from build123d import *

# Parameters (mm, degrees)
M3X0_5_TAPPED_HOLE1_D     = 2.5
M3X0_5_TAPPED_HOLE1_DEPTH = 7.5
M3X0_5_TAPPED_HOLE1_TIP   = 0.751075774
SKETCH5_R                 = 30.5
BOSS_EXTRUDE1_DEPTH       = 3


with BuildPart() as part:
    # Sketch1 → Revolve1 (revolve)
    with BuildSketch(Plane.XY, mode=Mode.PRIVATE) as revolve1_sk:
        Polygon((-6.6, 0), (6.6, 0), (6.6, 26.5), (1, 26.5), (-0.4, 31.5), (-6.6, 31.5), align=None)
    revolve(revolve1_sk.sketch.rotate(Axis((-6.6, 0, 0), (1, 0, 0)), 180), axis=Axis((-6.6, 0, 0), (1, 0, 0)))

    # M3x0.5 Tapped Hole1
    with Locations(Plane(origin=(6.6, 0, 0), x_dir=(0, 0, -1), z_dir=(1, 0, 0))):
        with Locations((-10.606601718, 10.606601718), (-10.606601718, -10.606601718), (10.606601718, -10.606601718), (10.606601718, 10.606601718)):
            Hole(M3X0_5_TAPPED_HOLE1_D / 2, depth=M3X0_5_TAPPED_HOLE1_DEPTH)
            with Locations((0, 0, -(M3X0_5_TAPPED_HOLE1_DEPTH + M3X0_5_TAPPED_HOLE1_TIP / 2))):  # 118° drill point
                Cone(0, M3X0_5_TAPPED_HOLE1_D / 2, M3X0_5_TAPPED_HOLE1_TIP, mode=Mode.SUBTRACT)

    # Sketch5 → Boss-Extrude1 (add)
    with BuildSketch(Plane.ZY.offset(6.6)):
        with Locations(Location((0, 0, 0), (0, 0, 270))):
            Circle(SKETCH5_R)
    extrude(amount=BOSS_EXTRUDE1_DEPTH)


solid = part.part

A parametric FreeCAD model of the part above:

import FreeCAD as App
import Part
import Sketcher
Q = App.Units.Quantity

doc = App.newDocument("Part")
body = doc.addObject("PartDesign::Body", "Body")

# Sketch on XY plane
sketch1 = body.newObject("Sketcher::SketchObject", "Sketch")
sketch1.AttachmentSupport = (doc.getObject("XY_Plane"), [""])
sketch1.MapMode = "FlatFace"
sketch1.addGeometry([
    Part.LineSegment(App.Vector(-7, 0, 0), App.Vector(7, 0, 0)),  # 0
    Part.LineSegment(App.Vector(7, 0, 0), App.Vector(7, 26, 0)),  # 1
    Part.LineSegment(App.Vector(7, 26, 0), App.Vector(1, 26, 0)),  # 2
    Part.LineSegment(App.Vector(1, 26, 0), App.Vector(0, 32, 0)),  # 3
    Part.LineSegment(App.Vector(0, 32, 0), App.Vector(-7, 32, 0)),  # 4
    Part.LineSegment(App.Vector(-7, 32, 0), App.Vector(-7, 0, 0)),  # 5
], False)
sketch1.addConstraint([
    Sketcher.Constraint("Coincident", 0, 2, 1, 1),
    Sketcher.Constraint("Coincident", 1, 2, 2, 1),
    Sketcher.Constraint("Coincident", 2, 2, 3, 1),
    Sketcher.Constraint("Coincident", 3, 2, 4, 1),
    Sketcher.Constraint("Coincident", 4, 2, 5, 1),
    Sketcher.Constraint("Coincident", 5, 2, 0, 1),
    Sketcher.Constraint("Horizontal", 0),
    Sketcher.Constraint("Vertical", 1),
    Sketcher.Constraint("Horizontal", 2),
    Sketcher.Constraint("Horizontal", 4),
    Sketcher.Constraint("Vertical", 5),
    Sketcher.Constraint("Symmetric", 0, 2, 5, 2, -1, 1),
    Sketcher.Constraint("DistanceX", 0, 1, 0, 2, Q("13.2 mm")),
    Sketcher.Constraint("DistanceX", 2, 2, 2, 1, Q("5.6 mm")),
    Sketcher.Constraint("DistanceX", 4, 2, 4, 1, Q("6.2 mm")),
    Sketcher.Constraint("DistanceY", 1, 1, 1, 2, Q("26.5 mm")),
    Sketcher.Constraint("DistanceY", 5, 2, 5, 1, Q("31.5 mm")),
])
revolution = body.newObject("PartDesign::Revolution", "Revolution")
revolution.Profile = sketch1
revolution.ReferenceAxis = (sketch1, ["H_Axis"])
revolution.Angle = 360

# Sketch on YZ plane
sketch2 = body.newObject("Sketcher::SketchObject", "Sketch001")
sketch2.AttachmentSupport = (doc.getObject("YZ_Plane"), [""])
sketch2.MapMode = "FlatFace"
sketch2.AttachmentOffset = App.Placement(App.Vector(0, 0, 6.6), App.Rotation())
sketch2.addGeometry([
    Part.Circle(App.Vector(10.6, 10.6, 0), App.Vector(0, 0, 1), 1.2),
    Part.Circle(App.Vector(-10.6, 10.6, 0), App.Vector(0, 0, 1), 1.2),
    Part.Circle(App.Vector(-10.6, -10.6, 0), App.Vector(0, 0, 1), 1.2),
    Part.Circle(App.Vector(10.6, -10.6, 0), App.Vector(0, 0, 1), 1.2),
], False)
sketch2.addConstraint([
    Sketcher.Constraint("Equal", 0, 1),
    Sketcher.Constraint("Equal", 1, 2),
    Sketcher.Constraint("Equal", 2, 3),
    Sketcher.Constraint("Symmetric", 0, 3, 2, 3, -1, 1),
    Sketcher.Constraint("Symmetric", 1, 3, 3, 3, -1, 1),
    Sketcher.Constraint("Symmetric", 0, 3, 1, 3, -2),
    Sketcher.Constraint("Diameter", 0, Q("2.5 mm")),
    Sketcher.Constraint("DistanceX", -1, 1, 0, 3, Q("10.606602 mm")),
    Sketcher.Constraint("DistanceY", -1, 1, 0, 3, Q("10.606602 mm")),
])
doc.recompute()
hole = body.newObject("PartDesign::Hole", "Hole")
hole.Profile = sketch2
hole.ThreadType = "None"
hole.Diameter = 2.5
hole.DepthType = "Dimension"
hole.Depth = 7.5
hole.DrillPoint = "Angled"
hole.DrillPointAngle = 118

# Sketch on YZ plane
sketch3 = body.newObject("Sketcher::SketchObject", "Sketch002")
sketch3.AttachmentSupport = (doc.getObject("YZ_Plane"), [""])
sketch3.MapMode = "FlatFace"
sketch3.AttachmentOffset = App.Placement(App.Vector(0, 0, -6.6), App.Rotation())
sketch3.addGeometry(Part.Circle(App.Vector(0, 0, 0), App.Vector(0, 0, 1), 30), False)
sketch3.addConstraint([
    Sketcher.Constraint("Coincident", 0, 3, -1, 1),
    Sketcher.Constraint("Diameter", 0, Q("61 mm")),
])
pad1 = body.newObject("PartDesign::Pad", "Pad")
pad1.Profile = sketch3
pad1.Length = 3
pad1.Reversed = True

doc.recompute()
